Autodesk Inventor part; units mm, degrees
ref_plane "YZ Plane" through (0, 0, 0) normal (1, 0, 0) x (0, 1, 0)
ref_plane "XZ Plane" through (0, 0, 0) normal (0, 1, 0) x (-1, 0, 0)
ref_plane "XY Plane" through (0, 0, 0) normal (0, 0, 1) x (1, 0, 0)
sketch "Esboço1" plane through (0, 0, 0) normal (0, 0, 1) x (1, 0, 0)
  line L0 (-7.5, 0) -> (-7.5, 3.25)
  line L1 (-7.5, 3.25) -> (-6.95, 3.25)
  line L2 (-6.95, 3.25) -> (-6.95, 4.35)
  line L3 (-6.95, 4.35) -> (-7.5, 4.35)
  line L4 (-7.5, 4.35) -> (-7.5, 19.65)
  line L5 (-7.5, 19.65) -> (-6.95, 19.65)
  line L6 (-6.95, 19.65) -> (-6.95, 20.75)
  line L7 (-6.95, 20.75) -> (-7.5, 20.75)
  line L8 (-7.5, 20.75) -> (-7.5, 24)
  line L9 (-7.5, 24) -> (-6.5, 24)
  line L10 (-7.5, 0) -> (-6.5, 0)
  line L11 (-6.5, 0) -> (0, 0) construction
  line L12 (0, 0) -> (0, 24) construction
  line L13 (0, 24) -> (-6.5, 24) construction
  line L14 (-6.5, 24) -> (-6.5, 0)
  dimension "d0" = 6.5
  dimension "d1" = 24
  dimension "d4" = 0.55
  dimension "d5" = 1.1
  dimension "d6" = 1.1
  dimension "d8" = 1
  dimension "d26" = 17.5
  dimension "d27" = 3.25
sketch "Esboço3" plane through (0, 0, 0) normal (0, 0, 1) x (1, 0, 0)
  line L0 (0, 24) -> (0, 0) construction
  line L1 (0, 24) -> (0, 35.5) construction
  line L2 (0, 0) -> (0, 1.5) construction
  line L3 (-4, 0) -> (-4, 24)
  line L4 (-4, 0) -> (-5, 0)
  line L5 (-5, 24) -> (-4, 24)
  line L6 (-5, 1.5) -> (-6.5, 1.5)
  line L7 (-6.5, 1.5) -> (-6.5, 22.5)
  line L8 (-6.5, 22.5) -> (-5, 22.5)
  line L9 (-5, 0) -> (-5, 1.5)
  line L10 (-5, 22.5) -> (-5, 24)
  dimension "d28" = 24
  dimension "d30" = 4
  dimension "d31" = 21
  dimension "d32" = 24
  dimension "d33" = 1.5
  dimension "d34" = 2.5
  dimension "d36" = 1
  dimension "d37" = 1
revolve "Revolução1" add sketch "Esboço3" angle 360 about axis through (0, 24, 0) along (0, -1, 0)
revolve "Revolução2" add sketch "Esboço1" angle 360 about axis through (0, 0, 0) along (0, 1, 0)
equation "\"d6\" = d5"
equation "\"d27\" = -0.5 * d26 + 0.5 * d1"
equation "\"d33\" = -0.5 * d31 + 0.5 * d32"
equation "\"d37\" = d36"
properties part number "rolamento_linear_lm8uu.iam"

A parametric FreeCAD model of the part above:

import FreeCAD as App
import Part
import Sketcher
from FreeCAD import Vector
Q = App.Units.Quantity


def add_polygon(sketch, points):
    """Adds a closed chain of lines whose ends are joined by coincident constraints."""
    first, n = sketch.GeometryCount, len(points)
    for a, b in zip(points, points[1:] + points[:1]):
        sketch.addGeometry(Part.LineSegment(App.Vector(*a, 0), App.Vector(*b, 0)), False)
    for i in range(n):
        sketch.addConstraint(Sketcher.Constraint("Coincident", first + i, 2, first + (i + 1) % n, 1))

doc = App.newDocument("Part")
body = doc.addObject("PartDesign::Body", "Body")

# Sketch on XY plane
sketch1 = body.newObject("Sketcher::SketchObject", "Sketch")
sketch1.AttachmentSupport = (doc.getObject("XY_Plane"), [""])
sketch1.MapMode = "FlatFace"
add_polygon(sketch1, [(-5, 0), (-4, 0), (-4, 24), (-5, 24), (-5, 22.5), (-6.5, 22.5), (-6.5, 1.5), (-5, 1.5)])  # lines 0-7
sketch1.addConstraint(Sketcher.Constraint("Horizontal", 0))
sketch1.addConstraint(Sketcher.Constraint("Vertical", 1))
sketch1.addConstraint(Sketcher.Constraint("Horizontal", 2))
sketch1.addConstraint(Sketcher.Constraint("Vertical", 3))
sketch1.addConstraint(Sketcher.Constraint("Horizontal", 4))
sketch1.addConstraint(Sketcher.Constraint("Vertical", 5))
sketch1.addConstraint(Sketcher.Constraint("Horizontal", 6))
sketch1.addConstraint(Sketcher.Constraint("Vertical", 7))
sketch1.addConstraint(Sketcher.Constraint("PointOnObject", 0, 2, -1))
sketch1.addConstraint(Sketcher.Constraint("Vertical", 3, 2, 6, 2))
sketch1.addConstraint(Sketcher.Constraint("Equal", 6, 3))
sketch1.addConstraint(Sketcher.Constraint("Equal", 3, 7))
sketch1.addConstraint(Sketcher.Constraint("DistanceX", 0, 1, 0, 2, Q("1 mm")))
sketch1.addConstraint(Sketcher.Constraint("DistanceY", 1, 1, 1, 2, Q("24 mm")))
sketch1.addConstraint(Sketcher.Constraint("DistanceY", 5, 2, 5, 1, Q("21 mm")))
sketch1.addConstraint(Sketcher.Constraint("DistanceX", 0, 2, -1, 1, Q("4 mm")))
revolution = body.newObject("PartDesign::Revolution", "Revolution")
revolution.Profile = sketch1
revolution.ReferenceAxis = (sketch1, ["V_Axis"])
revolution.Angle = 360

# Sketch on XY plane
sketch2 = body.newObject("Sketcher::SketchObject", "Sketch001")
sketch2.AttachmentSupport = (doc.getObject("XY_Plane"), [""])
sketch2.MapMode = "FlatFace"
add_polygon(sketch2, [(-7.5, 3.2), (-7.5, 0), (-6.5, 0), (-6.5, 24), (-7.5, 24), (-7.5, 20.8), (-7, 20.8), (-7, 19.6), (-7.5, 19.6), (-7.5, 4.3), (-7, 4.3), (-7, 3.2)])  # lines 0-11
sketch2.addConstraint(Sketcher.Constraint("Vertical", 0))
sketch2.addConstraint(Sketcher.Constraint("Horizontal", 1))
sketch2.addConstraint(Sketcher.Constraint("Vertical", 2))
sketch2.addConstraint(Sketcher.Constraint("Horizontal", 3))
sketch2.addConstraint(Sketcher.Constraint("Vertical", 4))
sketch2.addConstraint(Sketcher.Constraint("Horizontal", 5))
sketch2.addConstraint(Sketcher.Constraint("Vertical", 6))
sketch2.addConstraint(Sketcher.Constraint("Horizontal", 7))
sketch2.addConstraint(Sketcher.Constraint("Vertical", 8))
sketch2.addConstraint(Sketcher.Constraint("Horizontal", 9))
sketch2.addConstraint(Sketcher.Constraint("Vertical", 10))
sketch2.addConstraint(Sketcher.Constraint("Horizontal", 11))
sketch2.addConstraint(Sketcher.Constraint("PointOnObject", 0, 2, -1))
sketch2.addConstraint(Sketcher.Constraint("Vertical", 0, 2, 3, 2))
sketch2.addConstraint(Sketcher.Constraint("Vertical", 4, 2, 7, 2))
sketch2.addConstraint(Sketcher.Constraint("Vertical", 6, 2, 9, 2))
sketch2.addConstraint(Sketcher.Constraint("Equal", 0, 4))
sketch2.addConstraint(Sketcher.Constraint("Equal", 6, 10))
sketch2.addConstraint(Sketcher.Constraint("DistanceX", 1, 1, 1, 2, Q("1 mm")))
sketch2.addConstraint(Sketcher.Constraint("DistanceY", 2, 1, 2, 2, Q("24 mm")))
sketch2.addConstraint(Sketcher.Constraint("DistanceY", 6, 2, 6, 1, Q("1.1 mm")))
sketch2.addConstraint(Sketcher.Constraint("DistanceX", 5, 1, 5, 2, Q("0.55 mm")))
sketch2.addConstraint(Sketcher.Constraint("DistanceY", 0, 2, 0, 1, Q("3.25 mm")))
sketch2.addConstraint(Sketcher.Constraint("DistanceX", 1, 2, -1, 1, Q("6.5 mm")))
revolution2 = body.newObject("PartDesign::Revolution", "Revolution001")
revolution2.Profile = sketch2
revolution2.ReferenceAxis = (sketch2, ["V_Axis"])
revolution2.Angle = 360

doc.recompute()
